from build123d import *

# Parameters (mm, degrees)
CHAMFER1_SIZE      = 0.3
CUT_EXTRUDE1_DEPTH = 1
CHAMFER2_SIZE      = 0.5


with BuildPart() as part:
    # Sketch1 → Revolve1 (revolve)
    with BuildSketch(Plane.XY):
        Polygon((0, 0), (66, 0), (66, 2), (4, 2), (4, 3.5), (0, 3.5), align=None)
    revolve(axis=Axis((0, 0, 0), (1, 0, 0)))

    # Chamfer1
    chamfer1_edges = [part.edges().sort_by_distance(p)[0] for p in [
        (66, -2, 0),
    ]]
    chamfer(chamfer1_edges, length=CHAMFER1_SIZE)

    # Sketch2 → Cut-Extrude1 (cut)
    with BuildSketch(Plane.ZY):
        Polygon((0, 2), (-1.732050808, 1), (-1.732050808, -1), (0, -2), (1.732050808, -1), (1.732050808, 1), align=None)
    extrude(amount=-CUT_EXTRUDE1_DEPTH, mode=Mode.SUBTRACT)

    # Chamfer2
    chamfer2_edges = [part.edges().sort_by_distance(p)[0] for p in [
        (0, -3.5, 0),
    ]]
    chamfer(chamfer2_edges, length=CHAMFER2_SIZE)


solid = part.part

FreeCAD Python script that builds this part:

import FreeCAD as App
import Part
import Sketcher

V = App.Vector
Q = App.Units.Quantity


def edges_at(feature, points):
    """Names of the edges that pass closest to the given points."""
    edges = feature.Shape.Edges
    near = lambda p: min(range(len(edges)), key=lambda i: edges[i].distToShape(Part.Vertex(*p))[0])
    return sorted({f"Edge{near(p) + 1}" for p in points})

doc = App.newDocument("Part")
body = doc.addObject("PartDesign::Body", "Body")

# Sketch on XY plane
sketch1 = body.newObject("Sketcher::SketchObject", "Sketch")
sketch1.AttachmentSupport = (doc.getObject("XY_Plane"), [""])
sketch1.MapMode = "FlatFace"
sketch1.addGeometry(Part.LineSegment(V(0, 0, 0), V(66, 0, 0)), False)
sketch1.addGeometry(Part.LineSegment(V(66, 0, 0), V(66, 2, 0)), False)
sketch1.addGeometry(Part.LineSegment(V(66, 2, 0), V(4, 2, 0)), False)
sketch1.addGeometry(Part.LineSegment(V(4, 2, 0), V(4, 3.5, 0)), False)
sketch1.addGeometry(Part.LineSegment(V(4, 3.5, 0), V(0, 3.5, 0)), False)
sketch1.addGeometry(Part.LineSegment(V(0, 3.5, 0), V(0, 0, 0)), False)
sketch1.addConstraint(Sketcher.Constraint("Coincident", 0, 2, 1, 1))
sketch1.addConstraint(Sketcher.Constraint("Coincident", 1, 2, 2, 1))
sketch1.addConstraint(Sketcher.Constraint("Coincident", 2, 2, 3, 1))
sketch1.addConstraint(Sketcher.Constraint("Coincident", 3, 2, 4, 1))
sketch1.addConstraint(Sketcher.Constraint("Coincident", 4, 2, 5, 1))
sketch1.addConstraint(Sketcher.Constraint("Coincident", 5, 2, 0, 1))
sketch1.addConstraint(Sketcher.Constraint("Horizontal", 0))
sketch1.addConstraint(Sketcher.Constraint("Vertical", 1))
sketch1.addConstraint(Sketcher.Constraint("Horizontal", 2))
sketch1.addConstraint(Sketcher.Constraint("Vertical", 3))
sketch1.addConstraint(Sketcher.Constraint("Horizontal", 4))
sketch1.addConstraint(Sketcher.Constraint("Vertical", 5))
sketch1.addConstraint(Sketcher.Constraint("Coincident", 5, 2, -1, 1))
sketch1.addConstraint(Sketcher.Constraint("DistanceX", 0, 1, 0, 2, Q("66 mm")))
sketch1.addConstraint(Sketcher.Constraint("DistanceX", 2, 2, 2, 1, Q("62 mm")))
sketch1.addConstraint(Sketcher.Constraint("DistanceY", 1, 1, 1, 2, Q("2 mm")))
sketch1.addConstraint(Sketcher.Constraint("DistanceY", 3, 1, 3, 2, Q("1.5 mm")))
revolution = body.newObject("PartDesign::Revolution", "Revolution")
revolution.Profile = sketch1
revolution.ReferenceAxis = (sketch1, ["H_Axis"])
revolution.Angle = 360
doc.recompute()

chamfer = body.newObject("PartDesign::Chamfer", "Chamfer")
chamfer.Base = (revolution, edges_at(revolution, [(66, -2, 0)]))
chamfer.Size = 0.3

# Sketch on YZ plane
sketch2 = body.newObject("Sketcher::SketchObject", "Sketch001")
sketch2.AttachmentSupport = (doc.getObject("YZ_Plane"), [""])
sketch2.MapMode = "FlatFace"
sketch2.addGeometry(Part.LineSegment(V(2, 0, 0), V(1, -1.7, 0)), False)
sketch2.addGeometry(Part.LineSegment(V(1, -1.7, 0), V(-1, -1.7, 0)), False)
sketch2.addGeometry(Part.LineSegment(V(-1, -1.7, 0), V(-2, 0, 0)), False)
sketch2.addGeometry(Part.LineSegment(V(-2, 0, 0), V(-1, 1.7, 0)), False)
sketch2.addGeometry(Part.LineSegment(V(-1, 1.7, 0), V(1, 1.7, 0)), False)
sketch2.addGeometry(Part.LineSegment(V(1, 1.7, 0), V(2, 0, 0)), False)
sketch2.addConstraint(Sketcher.Constraint("Coincident", 0, 2, 1, 1))
sketch2.addConstraint(Sketcher.Constraint("Coincident", 1, 2, 2, 1))
sketch2.addConstraint(Sketcher.Constraint("Coincident", 2, 2, 3, 1))
sketch2.addConstraint(Sketcher.Constraint("Coincident", 3, 2, 4, 1))
sketch2.addConstraint(Sketcher.Constraint("Coincident", 4, 2, 5, 1))
sketch2.addConstraint(Sketcher.Constraint("Coincident", 5, 2, 0, 1))
sketch2.addConstraint(Sketcher.Constraint("Horizontal", 1))
sketch2.addConstraint(Sketcher.Constraint("Horizontal", 4))
sketch2.addConstraint(Sketcher.Constraint("Symmetric", 0, 2, 3, 2, -1, 1))
sketch2.addConstraint(Sketcher.Constraint("Symmetric", 2, 2, 5, 2, -1, 1))
sketch2.addConstraint(Sketcher.Constraint("PointOnObject", 2, 2, -1))
sketch2.addConstraint(Sketcher.Constraint("Parallel", 2, 5))
sketch2.addConstraint(Sketcher.Constraint("Vertical", 1, 2, 3, 2))
sketch2.addConstraint(Sketcher.Constraint("DistanceX", 1, 2, 1, 1, Q("2 mm")))
sketch2.addConstraint(Sketcher.Constraint("Angle", 0, Q("-120 deg")))
sketch2.addConstraint(Sketcher.Constraint("Distance", 0, Q("2 mm")))
pocket1 = body.newObject("PartDesign::Pocket", "Pocket")
pocket1.Profile = sketch2
pocket1.Length = 1
pocket1.Reversed = True
doc.recompute()

chamfer2 = body.newObject("PartDesign::Chamfer", "Chamfer001")
chamfer2.Base = (pocket1, edges_at(pocket1, [(0, -3.5, 0)]))
chamfer2.Size = 0.5

doc.recompute()
